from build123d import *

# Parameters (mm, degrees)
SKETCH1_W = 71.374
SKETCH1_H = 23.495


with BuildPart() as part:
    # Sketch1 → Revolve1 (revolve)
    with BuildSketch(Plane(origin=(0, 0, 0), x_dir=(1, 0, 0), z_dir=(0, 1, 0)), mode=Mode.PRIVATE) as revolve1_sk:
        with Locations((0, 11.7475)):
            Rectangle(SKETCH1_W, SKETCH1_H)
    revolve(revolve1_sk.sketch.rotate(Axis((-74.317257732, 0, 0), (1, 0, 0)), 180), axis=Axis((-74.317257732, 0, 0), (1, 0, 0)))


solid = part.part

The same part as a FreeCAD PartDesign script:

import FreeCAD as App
import Part
import Sketcher
from FreeCAD import Vector
Q = App.Units.Quantity

doc = App.newDocument("Part")
body = doc.addObject("PartDesign::Body", "Body")

# Sketch on XZ plane
sketch1 = body.newObject("Sketcher::SketchObject", "Sketch")
sketch1.AttachmentSupport = (doc.getObject("XZ_Plane"), [""])
sketch1.MapMode = "FlatFace"
sketch1.addGeometry([
    Part.LineSegment(Vector(-36, -23, 0), Vector(-36, 0, 0)),
    Part.LineSegment(Vector(-36, 0, 0), Vector(36, 0, 0)),
    Part.LineSegment(Vector(36, 0, 0), Vector(36, -23, 0)),
    Part.LineSegment(Vector(36, -23, 0), Vector(-36, -23, 0)),
], False)
sketch1.addConstraint([
    Sketcher.Constraint("Coincident", 0, 2, 1, 1),
    Sketcher.Constraint("Coincident", 1, 2, 2, 1),
    Sketcher.Constraint("Coincident", 2, 2, 3, 1),
    Sketcher.Constraint("Coincident", 3, 2, 0, 1),
    Sketcher.Constraint("Vertical", 0),
    Sketcher.Constraint("Horizontal", 1),
    Sketcher.Constraint("Vertical", 2),
    Sketcher.Constraint("Horizontal", 3),
    Sketcher.Constraint("Symmetric", 0, 2, 1, 2, -1, 1),
    Sketcher.Constraint("DistanceX", 1, 1, 1, 2, Q("2.81 in")),
    Sketcher.Constraint("DistanceY", 0, 1, 0, 2, Q("0.925 in")),
])
revolution = body.newObject("PartDesign::Revolution", "Revolution")
revolution.Profile = sketch1
revolution.ReferenceAxis = (sketch1, ["H_Axis"])
revolution.Angle = 360

doc.recompute()
